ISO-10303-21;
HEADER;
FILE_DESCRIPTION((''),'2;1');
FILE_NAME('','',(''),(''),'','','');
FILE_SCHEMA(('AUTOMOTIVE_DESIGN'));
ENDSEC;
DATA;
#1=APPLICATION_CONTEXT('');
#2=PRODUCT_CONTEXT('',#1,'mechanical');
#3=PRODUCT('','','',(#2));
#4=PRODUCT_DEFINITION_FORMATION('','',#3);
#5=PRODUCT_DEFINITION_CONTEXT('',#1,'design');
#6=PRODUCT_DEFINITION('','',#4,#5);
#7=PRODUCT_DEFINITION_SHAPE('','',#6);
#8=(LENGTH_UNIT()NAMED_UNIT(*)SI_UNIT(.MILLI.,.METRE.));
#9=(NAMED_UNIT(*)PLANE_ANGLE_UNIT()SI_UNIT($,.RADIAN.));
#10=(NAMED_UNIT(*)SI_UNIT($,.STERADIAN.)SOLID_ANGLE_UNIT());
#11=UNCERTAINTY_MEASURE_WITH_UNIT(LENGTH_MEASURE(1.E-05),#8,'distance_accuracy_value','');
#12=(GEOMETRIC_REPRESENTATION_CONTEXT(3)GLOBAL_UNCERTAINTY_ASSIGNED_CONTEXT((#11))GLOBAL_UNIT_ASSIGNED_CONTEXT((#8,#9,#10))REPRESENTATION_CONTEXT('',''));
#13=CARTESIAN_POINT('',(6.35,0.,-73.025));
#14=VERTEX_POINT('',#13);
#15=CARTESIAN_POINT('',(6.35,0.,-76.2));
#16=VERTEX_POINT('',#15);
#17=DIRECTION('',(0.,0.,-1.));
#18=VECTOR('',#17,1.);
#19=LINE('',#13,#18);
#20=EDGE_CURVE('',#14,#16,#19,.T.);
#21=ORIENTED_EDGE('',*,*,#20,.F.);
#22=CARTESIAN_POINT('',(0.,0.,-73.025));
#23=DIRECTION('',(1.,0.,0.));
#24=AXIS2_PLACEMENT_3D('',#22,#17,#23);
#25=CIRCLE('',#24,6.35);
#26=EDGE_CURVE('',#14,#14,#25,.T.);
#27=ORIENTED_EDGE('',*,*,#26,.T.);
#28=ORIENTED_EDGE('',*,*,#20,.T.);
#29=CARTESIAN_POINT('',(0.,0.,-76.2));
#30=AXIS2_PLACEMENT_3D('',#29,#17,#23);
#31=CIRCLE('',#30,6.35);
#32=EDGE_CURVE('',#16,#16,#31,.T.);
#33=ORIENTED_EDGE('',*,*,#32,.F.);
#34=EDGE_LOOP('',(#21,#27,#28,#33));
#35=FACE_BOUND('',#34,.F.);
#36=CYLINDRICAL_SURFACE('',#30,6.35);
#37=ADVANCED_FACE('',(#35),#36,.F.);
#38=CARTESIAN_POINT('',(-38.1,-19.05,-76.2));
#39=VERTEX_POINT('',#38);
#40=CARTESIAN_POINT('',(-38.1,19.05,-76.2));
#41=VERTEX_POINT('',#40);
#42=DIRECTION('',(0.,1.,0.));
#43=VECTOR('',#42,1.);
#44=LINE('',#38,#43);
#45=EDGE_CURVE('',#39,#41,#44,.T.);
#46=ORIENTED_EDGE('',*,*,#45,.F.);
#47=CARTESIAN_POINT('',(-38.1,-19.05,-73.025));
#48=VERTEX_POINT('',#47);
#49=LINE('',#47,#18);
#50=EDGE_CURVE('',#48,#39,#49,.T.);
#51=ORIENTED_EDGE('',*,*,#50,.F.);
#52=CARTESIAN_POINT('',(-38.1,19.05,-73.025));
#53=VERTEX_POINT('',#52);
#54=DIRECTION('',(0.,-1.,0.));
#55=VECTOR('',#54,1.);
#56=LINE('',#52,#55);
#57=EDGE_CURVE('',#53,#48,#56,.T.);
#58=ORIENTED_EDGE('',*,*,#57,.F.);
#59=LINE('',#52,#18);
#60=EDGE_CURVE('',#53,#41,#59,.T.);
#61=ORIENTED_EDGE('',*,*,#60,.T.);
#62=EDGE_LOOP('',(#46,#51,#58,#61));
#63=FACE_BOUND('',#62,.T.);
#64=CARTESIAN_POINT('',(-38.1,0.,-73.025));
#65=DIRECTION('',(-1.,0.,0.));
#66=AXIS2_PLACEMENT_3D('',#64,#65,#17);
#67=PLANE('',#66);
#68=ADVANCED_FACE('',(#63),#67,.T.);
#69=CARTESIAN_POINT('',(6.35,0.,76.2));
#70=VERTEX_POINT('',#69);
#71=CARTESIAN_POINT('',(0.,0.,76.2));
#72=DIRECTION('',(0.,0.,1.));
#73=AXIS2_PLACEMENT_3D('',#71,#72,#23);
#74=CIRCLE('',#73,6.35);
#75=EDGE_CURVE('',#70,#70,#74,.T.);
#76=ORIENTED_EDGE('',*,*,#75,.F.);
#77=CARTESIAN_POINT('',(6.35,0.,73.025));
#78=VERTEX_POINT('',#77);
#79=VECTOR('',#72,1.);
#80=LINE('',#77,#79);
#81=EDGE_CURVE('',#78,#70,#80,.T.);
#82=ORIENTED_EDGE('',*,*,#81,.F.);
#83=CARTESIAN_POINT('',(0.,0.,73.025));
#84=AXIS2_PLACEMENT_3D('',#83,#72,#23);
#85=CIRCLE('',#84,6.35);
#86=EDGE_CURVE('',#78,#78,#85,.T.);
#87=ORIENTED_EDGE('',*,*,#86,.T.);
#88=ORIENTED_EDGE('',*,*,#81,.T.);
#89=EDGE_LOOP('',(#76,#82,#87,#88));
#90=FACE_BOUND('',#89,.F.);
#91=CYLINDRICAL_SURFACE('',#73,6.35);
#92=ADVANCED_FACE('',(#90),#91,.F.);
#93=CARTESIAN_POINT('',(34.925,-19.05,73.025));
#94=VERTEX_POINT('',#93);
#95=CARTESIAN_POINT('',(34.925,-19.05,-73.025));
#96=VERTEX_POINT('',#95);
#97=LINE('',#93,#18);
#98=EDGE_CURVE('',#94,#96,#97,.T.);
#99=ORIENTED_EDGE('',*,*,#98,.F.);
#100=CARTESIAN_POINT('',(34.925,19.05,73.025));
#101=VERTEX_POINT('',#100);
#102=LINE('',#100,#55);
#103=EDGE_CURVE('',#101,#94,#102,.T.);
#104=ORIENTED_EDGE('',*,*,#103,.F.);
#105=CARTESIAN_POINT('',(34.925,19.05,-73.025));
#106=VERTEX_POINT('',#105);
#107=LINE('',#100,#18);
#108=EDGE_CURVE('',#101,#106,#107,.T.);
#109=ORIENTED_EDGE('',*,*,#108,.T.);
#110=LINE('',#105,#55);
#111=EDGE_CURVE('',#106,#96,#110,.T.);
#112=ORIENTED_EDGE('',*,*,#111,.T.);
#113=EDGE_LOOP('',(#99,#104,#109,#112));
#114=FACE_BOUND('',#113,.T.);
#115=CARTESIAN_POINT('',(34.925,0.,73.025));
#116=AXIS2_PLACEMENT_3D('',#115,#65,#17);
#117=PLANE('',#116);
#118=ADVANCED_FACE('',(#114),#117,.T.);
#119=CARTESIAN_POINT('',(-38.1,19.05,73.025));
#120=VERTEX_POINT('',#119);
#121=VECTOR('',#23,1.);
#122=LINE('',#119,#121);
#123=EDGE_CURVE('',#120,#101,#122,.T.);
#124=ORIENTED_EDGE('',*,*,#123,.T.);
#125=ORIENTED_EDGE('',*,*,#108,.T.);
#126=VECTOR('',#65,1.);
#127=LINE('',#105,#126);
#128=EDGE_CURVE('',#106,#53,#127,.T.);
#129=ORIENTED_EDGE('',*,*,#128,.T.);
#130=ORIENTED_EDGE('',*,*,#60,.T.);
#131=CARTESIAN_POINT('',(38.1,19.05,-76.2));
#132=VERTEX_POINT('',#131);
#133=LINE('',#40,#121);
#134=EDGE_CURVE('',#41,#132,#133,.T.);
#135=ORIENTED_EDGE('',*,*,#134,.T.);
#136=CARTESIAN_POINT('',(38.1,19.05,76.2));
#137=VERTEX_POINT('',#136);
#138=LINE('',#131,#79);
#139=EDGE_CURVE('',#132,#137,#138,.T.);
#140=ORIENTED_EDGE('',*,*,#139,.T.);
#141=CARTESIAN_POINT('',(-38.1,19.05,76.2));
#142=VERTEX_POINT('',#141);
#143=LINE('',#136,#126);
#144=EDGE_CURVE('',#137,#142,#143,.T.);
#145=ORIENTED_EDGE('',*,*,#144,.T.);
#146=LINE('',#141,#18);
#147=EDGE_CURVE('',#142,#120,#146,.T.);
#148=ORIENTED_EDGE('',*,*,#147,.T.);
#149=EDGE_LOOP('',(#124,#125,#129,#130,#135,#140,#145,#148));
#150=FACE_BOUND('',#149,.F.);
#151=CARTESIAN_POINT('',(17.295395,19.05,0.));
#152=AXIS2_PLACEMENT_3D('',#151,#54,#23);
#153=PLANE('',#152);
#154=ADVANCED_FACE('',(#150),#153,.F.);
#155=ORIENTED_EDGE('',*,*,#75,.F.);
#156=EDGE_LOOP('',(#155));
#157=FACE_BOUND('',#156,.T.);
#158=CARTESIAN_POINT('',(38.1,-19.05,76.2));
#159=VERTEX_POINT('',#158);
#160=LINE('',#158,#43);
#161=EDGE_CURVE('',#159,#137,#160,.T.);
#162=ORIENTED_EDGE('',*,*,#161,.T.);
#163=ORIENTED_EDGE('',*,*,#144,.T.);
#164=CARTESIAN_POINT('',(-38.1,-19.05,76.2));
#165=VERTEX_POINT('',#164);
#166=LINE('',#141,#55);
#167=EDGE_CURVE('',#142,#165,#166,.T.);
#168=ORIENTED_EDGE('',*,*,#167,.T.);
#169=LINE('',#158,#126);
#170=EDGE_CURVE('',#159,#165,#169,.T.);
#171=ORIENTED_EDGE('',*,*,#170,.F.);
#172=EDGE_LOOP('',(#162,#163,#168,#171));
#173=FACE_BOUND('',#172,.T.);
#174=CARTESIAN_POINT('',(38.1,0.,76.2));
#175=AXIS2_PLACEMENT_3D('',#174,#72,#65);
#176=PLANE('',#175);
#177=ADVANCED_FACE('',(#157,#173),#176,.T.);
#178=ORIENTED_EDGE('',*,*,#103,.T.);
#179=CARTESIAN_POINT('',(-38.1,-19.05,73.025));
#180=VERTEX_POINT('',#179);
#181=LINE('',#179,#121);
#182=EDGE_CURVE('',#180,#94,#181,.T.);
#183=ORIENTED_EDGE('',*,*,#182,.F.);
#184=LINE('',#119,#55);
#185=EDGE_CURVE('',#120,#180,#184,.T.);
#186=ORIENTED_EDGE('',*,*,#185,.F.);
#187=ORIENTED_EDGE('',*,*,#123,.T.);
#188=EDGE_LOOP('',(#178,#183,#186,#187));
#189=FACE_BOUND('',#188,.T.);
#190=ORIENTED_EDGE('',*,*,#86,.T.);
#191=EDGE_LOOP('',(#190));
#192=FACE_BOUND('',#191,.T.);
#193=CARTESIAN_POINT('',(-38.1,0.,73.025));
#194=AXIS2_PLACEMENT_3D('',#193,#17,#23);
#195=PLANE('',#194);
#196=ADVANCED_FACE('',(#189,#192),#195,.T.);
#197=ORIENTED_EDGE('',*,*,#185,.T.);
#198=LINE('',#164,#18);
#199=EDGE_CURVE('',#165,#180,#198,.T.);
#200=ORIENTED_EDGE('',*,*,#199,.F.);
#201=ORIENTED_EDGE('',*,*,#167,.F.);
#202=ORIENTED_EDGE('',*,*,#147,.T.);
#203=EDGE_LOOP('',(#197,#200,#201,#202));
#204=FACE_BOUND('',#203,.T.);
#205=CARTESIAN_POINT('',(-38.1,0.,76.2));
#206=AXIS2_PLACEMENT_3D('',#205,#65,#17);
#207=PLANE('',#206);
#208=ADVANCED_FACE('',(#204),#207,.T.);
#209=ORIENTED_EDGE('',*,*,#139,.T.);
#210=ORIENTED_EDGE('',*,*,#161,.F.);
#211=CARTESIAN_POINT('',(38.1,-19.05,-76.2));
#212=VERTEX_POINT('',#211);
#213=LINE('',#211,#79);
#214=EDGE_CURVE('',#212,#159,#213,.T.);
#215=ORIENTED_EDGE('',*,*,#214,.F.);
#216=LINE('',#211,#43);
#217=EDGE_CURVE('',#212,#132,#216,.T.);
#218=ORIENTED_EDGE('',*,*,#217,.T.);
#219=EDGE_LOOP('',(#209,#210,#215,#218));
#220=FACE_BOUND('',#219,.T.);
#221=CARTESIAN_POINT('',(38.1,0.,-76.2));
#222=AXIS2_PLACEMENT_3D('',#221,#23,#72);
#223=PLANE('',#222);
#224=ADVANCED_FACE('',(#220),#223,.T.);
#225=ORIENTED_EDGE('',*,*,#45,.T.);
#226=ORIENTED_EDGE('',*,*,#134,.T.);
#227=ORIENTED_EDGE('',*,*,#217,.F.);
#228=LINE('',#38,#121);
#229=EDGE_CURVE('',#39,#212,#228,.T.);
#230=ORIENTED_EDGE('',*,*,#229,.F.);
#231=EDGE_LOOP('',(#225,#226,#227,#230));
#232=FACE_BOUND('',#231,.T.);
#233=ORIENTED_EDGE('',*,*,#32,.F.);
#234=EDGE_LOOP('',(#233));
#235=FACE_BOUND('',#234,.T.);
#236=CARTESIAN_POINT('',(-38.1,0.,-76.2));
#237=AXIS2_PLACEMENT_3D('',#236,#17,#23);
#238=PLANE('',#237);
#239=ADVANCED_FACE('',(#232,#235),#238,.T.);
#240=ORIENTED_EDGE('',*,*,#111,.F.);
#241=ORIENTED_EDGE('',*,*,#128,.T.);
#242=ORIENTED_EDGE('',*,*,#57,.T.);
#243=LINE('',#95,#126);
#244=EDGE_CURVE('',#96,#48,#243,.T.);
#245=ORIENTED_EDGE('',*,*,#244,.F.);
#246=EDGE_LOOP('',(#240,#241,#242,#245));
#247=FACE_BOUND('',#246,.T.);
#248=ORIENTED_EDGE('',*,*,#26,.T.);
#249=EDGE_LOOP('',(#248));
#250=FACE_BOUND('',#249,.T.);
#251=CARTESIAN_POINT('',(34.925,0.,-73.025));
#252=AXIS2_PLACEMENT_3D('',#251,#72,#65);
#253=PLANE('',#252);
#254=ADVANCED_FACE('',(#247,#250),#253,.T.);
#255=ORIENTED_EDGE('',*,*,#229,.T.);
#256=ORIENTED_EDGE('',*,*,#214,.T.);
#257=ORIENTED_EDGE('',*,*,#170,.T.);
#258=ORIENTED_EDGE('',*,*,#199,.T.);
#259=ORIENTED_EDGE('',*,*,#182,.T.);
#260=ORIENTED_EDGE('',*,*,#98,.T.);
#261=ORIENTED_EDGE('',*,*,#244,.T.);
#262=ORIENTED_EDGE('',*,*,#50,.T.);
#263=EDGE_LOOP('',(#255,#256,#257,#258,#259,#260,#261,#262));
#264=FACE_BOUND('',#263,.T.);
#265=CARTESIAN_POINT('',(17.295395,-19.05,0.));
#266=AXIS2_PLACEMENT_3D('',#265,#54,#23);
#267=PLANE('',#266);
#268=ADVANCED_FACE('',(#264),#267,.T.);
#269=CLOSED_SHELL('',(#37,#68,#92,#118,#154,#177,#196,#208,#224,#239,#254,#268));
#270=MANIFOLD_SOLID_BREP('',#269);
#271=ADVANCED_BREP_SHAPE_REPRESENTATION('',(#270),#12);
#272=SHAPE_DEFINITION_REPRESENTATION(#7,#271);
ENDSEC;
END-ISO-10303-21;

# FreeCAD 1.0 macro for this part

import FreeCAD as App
import Part
import Sketcher
from FreeCAD import Vector
Q = App.Units.Quantity


def add_polygon(sketch, points):
    """Adds a closed chain of lines whose ends are joined by coincident constraints."""
    first, n = sketch.GeometryCount, len(points)
    for a, b in zip(points, points[1:] + points[:1]):
        sketch.addGeometry(Part.LineSegment(App.Vector(*a, 0), App.Vector(*b, 0)), False)
    for i in range(n):
        sketch.addConstraint(Sketcher.Constraint("Coincident", first + i, 2, first + (i + 1) % n, 1))

doc = App.newDocument("Part")
body = doc.addObject("PartDesign::Body", "Body")

# Sketch on XZ plane
sketch1 = body.newObject("Sketcher::SketchObject", "Sketch")
sketch1.AttachmentSupport = (doc.getObject("XZ_Plane"), [""])
sketch1.MapMode = "FlatFace"
add_polygon(sketch1, [(38.1, 76.2), (-38.1, 76.2), (-38.1, 73), (34.9, 73), (34.9, -73), (-38.1, -73), (-38.1, -76.2), (38.1, -76.2)])  # lines 0-7
sketch1.addConstraint([
    Sketcher.Constraint("Horizontal", 0),
    Sketcher.Constraint("Vertical", 1),
    Sketcher.Constraint("Horizontal", 2),
    Sketcher.Constraint("Vertical", 3),
    Sketcher.Constraint("Horizontal", 4),
    Sketcher.Constraint("Vertical", 5),
    Sketcher.Constraint("Horizontal", 6),
    Sketcher.Constraint("Vertical", 7),
    Sketcher.Constraint("Symmetric", 0, 2, 6, 2, -1, 1),
    Sketcher.Constraint("Symmetric", 1, 2, 4, 2, -1),
    Sketcher.Constraint("DistanceX", 0, 2, 0, 1, Q("3 in")),
    Sketcher.Constraint("DistanceY", 7, 1, 7, 2, Q("6 in")),
    Sketcher.Constraint("DistanceY", 3, 2, 3, 1, Q("5.75 in")),
    Sketcher.Constraint("DistanceX", 2, 1, 2, 2, Q("2.875 in")),
])
pad1 = body.newObject("PartDesign::Pad", "Pad")
pad1.Profile = sketch1
pad1.Length = Q("1.5 in")
pad1.Midplane = True

# Sketch on XY plane
sketch2 = body.newObject("Sketcher::SketchObject", "Sketch001")
sketch2.AttachmentSupport = (doc.getObject("XY_Plane"), [""])
sketch2.MapMode = "FlatFace"
sketch2.AttachmentOffset = App.Placement(Vector(0, 0, 3 * 25.4), App.Rotation())
sketch2.addGeometry(Part.Circle(Vector(0, 0, 0), Vector(0, 0, 1), 6), False)
sketch2.addConstraint([
    Sketcher.Constraint("Coincident", 0, 3, -1, 1),
    Sketcher.Constraint("Diameter", 0, Q("0.5 in")),
])
pocket1 = body.newObject("PartDesign::Pocket", "Pocket")
pocket1.Profile = sketch2
pocket1.Length = Q("0.25 in")
pocket1.Midplane = True

# Sketch on XY plane
sketch3 = body.newObject("Sketcher::SketchObject", "Sketch002")
sketch3.AttachmentSupport = (doc.getObject("XY_Plane"), [""])
sketch3.MapMode = "FlatFace"
sketch3.AttachmentOffset = App.Placement(Vector(0, 0, -3 * 25.4), App.Rotation())
sketch3.addGeometry(Part.Circle(Vector(0, 0, 0), Vector(0, 0, 1), 6), False)
sketch3.addConstraint([
    Sketcher.Constraint("Coincident", 0, 3, -1, 1),
    Sketcher.Constraint("Diameter", 0, Q("0.5 in")),
])
pocket2 = body.newObject("PartDesign::Pocket", "Pocket001")
pocket2.Profile = sketch3
pocket2.Length = Q("0.25 in")
pocket2.Midplane = True

doc.recompute()
